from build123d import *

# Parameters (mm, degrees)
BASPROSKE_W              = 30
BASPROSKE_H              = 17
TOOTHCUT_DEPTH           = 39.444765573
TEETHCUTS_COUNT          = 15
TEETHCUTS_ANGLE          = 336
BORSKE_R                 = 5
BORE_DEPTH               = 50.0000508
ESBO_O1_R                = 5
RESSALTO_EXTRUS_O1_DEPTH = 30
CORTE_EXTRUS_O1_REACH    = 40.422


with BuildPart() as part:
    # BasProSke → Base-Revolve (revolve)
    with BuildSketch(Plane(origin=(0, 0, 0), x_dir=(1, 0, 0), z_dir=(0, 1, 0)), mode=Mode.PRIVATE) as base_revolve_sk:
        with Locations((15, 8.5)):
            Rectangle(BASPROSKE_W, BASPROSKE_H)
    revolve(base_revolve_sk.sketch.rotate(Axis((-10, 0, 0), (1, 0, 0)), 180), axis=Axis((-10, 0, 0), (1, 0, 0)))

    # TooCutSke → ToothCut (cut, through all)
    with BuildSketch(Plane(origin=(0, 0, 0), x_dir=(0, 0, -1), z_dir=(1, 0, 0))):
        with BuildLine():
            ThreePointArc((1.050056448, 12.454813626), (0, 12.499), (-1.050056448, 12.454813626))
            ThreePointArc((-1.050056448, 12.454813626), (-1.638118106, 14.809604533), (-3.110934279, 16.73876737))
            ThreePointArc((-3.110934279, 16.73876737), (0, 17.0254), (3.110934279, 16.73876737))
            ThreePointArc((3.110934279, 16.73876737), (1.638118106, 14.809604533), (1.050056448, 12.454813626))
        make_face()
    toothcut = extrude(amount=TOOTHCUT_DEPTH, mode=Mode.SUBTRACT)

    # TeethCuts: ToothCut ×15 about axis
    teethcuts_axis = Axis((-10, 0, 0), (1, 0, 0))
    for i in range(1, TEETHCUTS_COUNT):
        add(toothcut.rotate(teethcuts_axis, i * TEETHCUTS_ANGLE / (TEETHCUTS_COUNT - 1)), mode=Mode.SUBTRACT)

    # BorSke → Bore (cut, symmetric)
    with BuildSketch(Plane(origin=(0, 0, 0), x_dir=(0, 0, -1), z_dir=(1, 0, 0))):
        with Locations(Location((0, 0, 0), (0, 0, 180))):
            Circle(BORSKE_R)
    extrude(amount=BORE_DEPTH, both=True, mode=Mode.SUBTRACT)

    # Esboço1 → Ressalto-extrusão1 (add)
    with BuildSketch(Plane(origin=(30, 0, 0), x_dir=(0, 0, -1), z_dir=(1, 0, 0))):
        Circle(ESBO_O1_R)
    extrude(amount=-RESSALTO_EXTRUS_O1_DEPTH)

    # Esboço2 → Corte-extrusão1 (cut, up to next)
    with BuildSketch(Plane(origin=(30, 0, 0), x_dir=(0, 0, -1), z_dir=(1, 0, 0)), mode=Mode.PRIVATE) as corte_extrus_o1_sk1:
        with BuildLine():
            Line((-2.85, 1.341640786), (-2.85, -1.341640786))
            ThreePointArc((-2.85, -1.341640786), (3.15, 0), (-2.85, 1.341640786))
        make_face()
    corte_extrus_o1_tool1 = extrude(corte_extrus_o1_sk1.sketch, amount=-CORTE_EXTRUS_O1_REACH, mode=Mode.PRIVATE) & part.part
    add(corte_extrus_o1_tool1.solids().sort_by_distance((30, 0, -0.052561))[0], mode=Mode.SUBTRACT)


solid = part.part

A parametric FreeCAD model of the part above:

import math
import FreeCAD as App
import Part
import Sketcher
Q = App.Units.Quantity


def add_polygon(sketch, points):
    """Adds a closed chain of lines whose ends are joined by coincident constraints."""
    first, n = sketch.GeometryCount, len(points)
    for a, b in zip(points, points[1:] + points[:1]):
        sketch.addGeometry(Part.LineSegment(App.Vector(*a, 0), App.Vector(*b, 0)), False)
    for i in range(n):
        sketch.addConstraint(Sketcher.Constraint("Coincident", first + i, 2, first + (i + 1) % n, 1))

doc = App.newDocument("Part")
params = doc.addObject("Spreadsheet::Sheet", "Params")
for row, (alias, value) in enumerate([
    ("sketch1_width", "30 mm"),
    ("sketch1_height", "17 mm"),
    ("revolution_angle", "360 deg"),
    ("sketch2_radius", "6 mm"),
    ("sketch3_diameter", "10 mm"),
    ("pocket2_length", "100.000102 mm"),
    ("sketch4_diameter", "10 mm"),
    ("pad1_length", "30 mm"),
    ("sketch5_radius", "3.15 mm"),
], start=1):
    params.set(f"A{row}", alias)
    params.set(f"B{row}", "=" + value)
    params.setAlias(f"B{row}", alias)

body = doc.addObject("PartDesign::Body", "Body")

sketch1 = body.newObject("Sketcher::SketchObject", "Sketch")
sketch1.AttachmentSupport = (doc.getObject("XZ_Plane"), [""])
sketch1.MapMode = "FlatFace"
add_polygon(sketch1, [(0, -17), (0, 0), (30, 0), (30, -17)])
sketch1.addConstraint([
    Sketcher.Constraint("Vertical", 0),
    Sketcher.Constraint("Horizontal", 1),
    Sketcher.Constraint("Vertical", 2),
    Sketcher.Constraint("Horizontal", 3),
    Sketcher.Constraint("Coincident", 0, 2, -1, 1),
    Sketcher.Constraint("DistanceX", 1, 1, 1, 2, Q("30 mm")),
    Sketcher.Constraint("DistanceY", 0, 1, 0, 2, Q("17 mm")),
])
sketch1.setExpression("Constraints[9]", "Params.sketch1_width")
sketch1.setExpression("Constraints[10]", "Params.sketch1_height")
revolution = body.newObject("PartDesign::Revolution", "Revolution")
revolution.Profile = sketch1
revolution.ReferenceAxis = (sketch1, ["H_Axis"])
revolution.setExpression("Angle", "Params.revolution_angle")

sketch2 = body.newObject("Sketcher::SketchObject", "Sketch001")
sketch2.AttachmentSupport = (doc.getObject("YZ_Plane"), [""])
sketch2.MapMode = "FlatFace"
sketch2.addGeometry([
    Part.ArcOfCircle(Part.Circle(App.Vector(0, 0, 0), App.Vector(0, 0, 1), 12.5), math.radians(-4.82), math.radians(4.82)),
    Part.ArcOfCircle(Part.Circle(App.Vector(12.2, -7, 0), App.Vector(0, 0, 1), 6), math.radians(41), math.radians(88)),
    Part.ArcOfCircle(Part.Circle(App.Vector(0, 0, 0), App.Vector(0, 0, 1), 17), math.radians(-11), math.radians(11)),
    Part.ArcOfCircle(Part.Circle(App.Vector(12.2, 7, 0), App.Vector(0, 0, 1), 6), math.radians(-88), math.radians(-41)),
], False)
sketch2.addConstraint([
    Sketcher.Constraint("Coincident", 0, 1, 1, 2),
    Sketcher.Constraint("Coincident", 1, 1, 2, 1),
    Sketcher.Constraint("Coincident", 2, 2, 3, 2),
    Sketcher.Constraint("Coincident", 3, 1, 0, 2),
    Sketcher.Constraint("Coincident", 0, 3, -1, 1),
    Sketcher.Constraint("Coincident", 2, 3, -1, 1),
    Sketcher.Constraint("Equal", 1, 3),
    Sketcher.Constraint("Symmetric", 1, 3, 3, 3, -1),
    Sketcher.Constraint("Radius", 1, Q("6 mm")),
    Sketcher.Constraint("Radius", 0, Q("12.499 mm")),
    Sketcher.Constraint("Radius", 2, Q("17.0254 mm")),
    Sketcher.Constraint("DistanceY", 1, 3, 3, 3, Q("14.089999 mm")),
    Sketcher.Constraint("DistanceX", -1, 1, 1, 3, Q("12.208521 mm")),
])
sketch2.setExpression("Constraints[8]", "Params.sketch2_radius")
pocket1 = body.newObject("PartDesign::Pocket", "Pocket")
pocket1.Profile = sketch2
pocket1.Type = "ThroughAll"
pocket1.Reversed = True
doc.recompute()

polarpattern = body.newObject("PartDesign::PolarPattern", "PolarPattern")
polarpattern.Originals = [pocket1]
polarpattern.Axis = (doc.getObject("X_Axis"), [""])
polarpattern.Angle = 360
polarpattern.Occurrences = 15
body.Tip = polarpattern

sketch3 = body.newObject("Sketcher::SketchObject", "Sketch002")
sketch3.AttachmentSupport = (doc.getObject("YZ_Plane"), [""])
sketch3.MapMode = "FlatFace"
sketch3.addGeometry(Part.Circle(App.Vector(0, 0, 0), App.Vector(0, 0, 1), 5), False)
sketch3.addConstraint([
    Sketcher.Constraint("Coincident", 0, 3, -1, 1),
    Sketcher.Constraint("Diameter", 0, Q("10 mm")),
])
sketch3.setExpression("Constraints[1]", "Params.sketch3_diameter")
pocket2 = body.newObject("PartDesign::Pocket", "Pocket001")
pocket2.Profile = sketch3
pocket2.setExpression("Length", "Params.pocket2_length")
pocket2.Midplane = True

sketch4 = body.newObject("Sketcher::SketchObject", "Sketch003")
sketch4.AttachmentSupport = (doc.getObject("YZ_Plane"), [""])
sketch4.MapMode = "FlatFace"
sketch4.AttachmentOffset = App.Placement(App.Vector(0, 0, 30), App.Rotation())
sketch4.addGeometry(Part.Circle(App.Vector(0, 0, 0), App.Vector(0, 0, 1), 5), False)
sketch4.addConstraint([
    Sketcher.Constraint("Coincident", 0, 3, -1, 1),
    Sketcher.Constraint("Diameter", 0, Q("10 mm")),
])
sketch4.setExpression("Constraints[1]", "Params.sketch4_diameter")
pad1 = body.newObject("PartDesign::Pad", "Pad")
pad1.Profile = sketch4
pad1.setExpression("Length", "Params.pad1_length")
pad1.Reversed = True

sketch5 = body.newObject("Sketcher::SketchObject", "Sketch004")
sketch5.AttachmentSupport = (doc.getObject("YZ_Plane"), [""])
sketch5.MapMode = "FlatFace"
sketch5.AttachmentOffset = App.Placement(App.Vector(0, 0, 30), App.Rotation())
sketch5.addGeometry([
    Part.LineSegment(App.Vector(1.3, 2.9, 0), App.Vector(-1.3, 2.9, 0)),
    Part.ArcOfCircle(Part.Circle(App.Vector(0, 0, 0), App.Vector(0, 0, 1), 3.1), math.radians(115), math.radians(425)),
], False)
sketch5.addConstraint([
    Sketcher.Constraint("Coincident", 0, 1, 1, 2),
    Sketcher.Constraint("Coincident", 1, 1, 0, 2),
    Sketcher.Constraint("Horizontal", 0),
    Sketcher.Constraint("Coincident", 1, 3, -1, 1),
    Sketcher.Constraint("Radius", 1, Q("3.15 mm")),
    Sketcher.Constraint("DistanceY", -1, 1, 0, 1, Q("2.85 mm")),
])
sketch5.setExpression("Constraints[4]", "Params.sketch5_radius")
pocket3 = body.newObject("PartDesign::Pocket", "Pocket002")
pocket3.Profile = sketch5
pocket3.Type = "UpToFirst"

doc.recompute()
